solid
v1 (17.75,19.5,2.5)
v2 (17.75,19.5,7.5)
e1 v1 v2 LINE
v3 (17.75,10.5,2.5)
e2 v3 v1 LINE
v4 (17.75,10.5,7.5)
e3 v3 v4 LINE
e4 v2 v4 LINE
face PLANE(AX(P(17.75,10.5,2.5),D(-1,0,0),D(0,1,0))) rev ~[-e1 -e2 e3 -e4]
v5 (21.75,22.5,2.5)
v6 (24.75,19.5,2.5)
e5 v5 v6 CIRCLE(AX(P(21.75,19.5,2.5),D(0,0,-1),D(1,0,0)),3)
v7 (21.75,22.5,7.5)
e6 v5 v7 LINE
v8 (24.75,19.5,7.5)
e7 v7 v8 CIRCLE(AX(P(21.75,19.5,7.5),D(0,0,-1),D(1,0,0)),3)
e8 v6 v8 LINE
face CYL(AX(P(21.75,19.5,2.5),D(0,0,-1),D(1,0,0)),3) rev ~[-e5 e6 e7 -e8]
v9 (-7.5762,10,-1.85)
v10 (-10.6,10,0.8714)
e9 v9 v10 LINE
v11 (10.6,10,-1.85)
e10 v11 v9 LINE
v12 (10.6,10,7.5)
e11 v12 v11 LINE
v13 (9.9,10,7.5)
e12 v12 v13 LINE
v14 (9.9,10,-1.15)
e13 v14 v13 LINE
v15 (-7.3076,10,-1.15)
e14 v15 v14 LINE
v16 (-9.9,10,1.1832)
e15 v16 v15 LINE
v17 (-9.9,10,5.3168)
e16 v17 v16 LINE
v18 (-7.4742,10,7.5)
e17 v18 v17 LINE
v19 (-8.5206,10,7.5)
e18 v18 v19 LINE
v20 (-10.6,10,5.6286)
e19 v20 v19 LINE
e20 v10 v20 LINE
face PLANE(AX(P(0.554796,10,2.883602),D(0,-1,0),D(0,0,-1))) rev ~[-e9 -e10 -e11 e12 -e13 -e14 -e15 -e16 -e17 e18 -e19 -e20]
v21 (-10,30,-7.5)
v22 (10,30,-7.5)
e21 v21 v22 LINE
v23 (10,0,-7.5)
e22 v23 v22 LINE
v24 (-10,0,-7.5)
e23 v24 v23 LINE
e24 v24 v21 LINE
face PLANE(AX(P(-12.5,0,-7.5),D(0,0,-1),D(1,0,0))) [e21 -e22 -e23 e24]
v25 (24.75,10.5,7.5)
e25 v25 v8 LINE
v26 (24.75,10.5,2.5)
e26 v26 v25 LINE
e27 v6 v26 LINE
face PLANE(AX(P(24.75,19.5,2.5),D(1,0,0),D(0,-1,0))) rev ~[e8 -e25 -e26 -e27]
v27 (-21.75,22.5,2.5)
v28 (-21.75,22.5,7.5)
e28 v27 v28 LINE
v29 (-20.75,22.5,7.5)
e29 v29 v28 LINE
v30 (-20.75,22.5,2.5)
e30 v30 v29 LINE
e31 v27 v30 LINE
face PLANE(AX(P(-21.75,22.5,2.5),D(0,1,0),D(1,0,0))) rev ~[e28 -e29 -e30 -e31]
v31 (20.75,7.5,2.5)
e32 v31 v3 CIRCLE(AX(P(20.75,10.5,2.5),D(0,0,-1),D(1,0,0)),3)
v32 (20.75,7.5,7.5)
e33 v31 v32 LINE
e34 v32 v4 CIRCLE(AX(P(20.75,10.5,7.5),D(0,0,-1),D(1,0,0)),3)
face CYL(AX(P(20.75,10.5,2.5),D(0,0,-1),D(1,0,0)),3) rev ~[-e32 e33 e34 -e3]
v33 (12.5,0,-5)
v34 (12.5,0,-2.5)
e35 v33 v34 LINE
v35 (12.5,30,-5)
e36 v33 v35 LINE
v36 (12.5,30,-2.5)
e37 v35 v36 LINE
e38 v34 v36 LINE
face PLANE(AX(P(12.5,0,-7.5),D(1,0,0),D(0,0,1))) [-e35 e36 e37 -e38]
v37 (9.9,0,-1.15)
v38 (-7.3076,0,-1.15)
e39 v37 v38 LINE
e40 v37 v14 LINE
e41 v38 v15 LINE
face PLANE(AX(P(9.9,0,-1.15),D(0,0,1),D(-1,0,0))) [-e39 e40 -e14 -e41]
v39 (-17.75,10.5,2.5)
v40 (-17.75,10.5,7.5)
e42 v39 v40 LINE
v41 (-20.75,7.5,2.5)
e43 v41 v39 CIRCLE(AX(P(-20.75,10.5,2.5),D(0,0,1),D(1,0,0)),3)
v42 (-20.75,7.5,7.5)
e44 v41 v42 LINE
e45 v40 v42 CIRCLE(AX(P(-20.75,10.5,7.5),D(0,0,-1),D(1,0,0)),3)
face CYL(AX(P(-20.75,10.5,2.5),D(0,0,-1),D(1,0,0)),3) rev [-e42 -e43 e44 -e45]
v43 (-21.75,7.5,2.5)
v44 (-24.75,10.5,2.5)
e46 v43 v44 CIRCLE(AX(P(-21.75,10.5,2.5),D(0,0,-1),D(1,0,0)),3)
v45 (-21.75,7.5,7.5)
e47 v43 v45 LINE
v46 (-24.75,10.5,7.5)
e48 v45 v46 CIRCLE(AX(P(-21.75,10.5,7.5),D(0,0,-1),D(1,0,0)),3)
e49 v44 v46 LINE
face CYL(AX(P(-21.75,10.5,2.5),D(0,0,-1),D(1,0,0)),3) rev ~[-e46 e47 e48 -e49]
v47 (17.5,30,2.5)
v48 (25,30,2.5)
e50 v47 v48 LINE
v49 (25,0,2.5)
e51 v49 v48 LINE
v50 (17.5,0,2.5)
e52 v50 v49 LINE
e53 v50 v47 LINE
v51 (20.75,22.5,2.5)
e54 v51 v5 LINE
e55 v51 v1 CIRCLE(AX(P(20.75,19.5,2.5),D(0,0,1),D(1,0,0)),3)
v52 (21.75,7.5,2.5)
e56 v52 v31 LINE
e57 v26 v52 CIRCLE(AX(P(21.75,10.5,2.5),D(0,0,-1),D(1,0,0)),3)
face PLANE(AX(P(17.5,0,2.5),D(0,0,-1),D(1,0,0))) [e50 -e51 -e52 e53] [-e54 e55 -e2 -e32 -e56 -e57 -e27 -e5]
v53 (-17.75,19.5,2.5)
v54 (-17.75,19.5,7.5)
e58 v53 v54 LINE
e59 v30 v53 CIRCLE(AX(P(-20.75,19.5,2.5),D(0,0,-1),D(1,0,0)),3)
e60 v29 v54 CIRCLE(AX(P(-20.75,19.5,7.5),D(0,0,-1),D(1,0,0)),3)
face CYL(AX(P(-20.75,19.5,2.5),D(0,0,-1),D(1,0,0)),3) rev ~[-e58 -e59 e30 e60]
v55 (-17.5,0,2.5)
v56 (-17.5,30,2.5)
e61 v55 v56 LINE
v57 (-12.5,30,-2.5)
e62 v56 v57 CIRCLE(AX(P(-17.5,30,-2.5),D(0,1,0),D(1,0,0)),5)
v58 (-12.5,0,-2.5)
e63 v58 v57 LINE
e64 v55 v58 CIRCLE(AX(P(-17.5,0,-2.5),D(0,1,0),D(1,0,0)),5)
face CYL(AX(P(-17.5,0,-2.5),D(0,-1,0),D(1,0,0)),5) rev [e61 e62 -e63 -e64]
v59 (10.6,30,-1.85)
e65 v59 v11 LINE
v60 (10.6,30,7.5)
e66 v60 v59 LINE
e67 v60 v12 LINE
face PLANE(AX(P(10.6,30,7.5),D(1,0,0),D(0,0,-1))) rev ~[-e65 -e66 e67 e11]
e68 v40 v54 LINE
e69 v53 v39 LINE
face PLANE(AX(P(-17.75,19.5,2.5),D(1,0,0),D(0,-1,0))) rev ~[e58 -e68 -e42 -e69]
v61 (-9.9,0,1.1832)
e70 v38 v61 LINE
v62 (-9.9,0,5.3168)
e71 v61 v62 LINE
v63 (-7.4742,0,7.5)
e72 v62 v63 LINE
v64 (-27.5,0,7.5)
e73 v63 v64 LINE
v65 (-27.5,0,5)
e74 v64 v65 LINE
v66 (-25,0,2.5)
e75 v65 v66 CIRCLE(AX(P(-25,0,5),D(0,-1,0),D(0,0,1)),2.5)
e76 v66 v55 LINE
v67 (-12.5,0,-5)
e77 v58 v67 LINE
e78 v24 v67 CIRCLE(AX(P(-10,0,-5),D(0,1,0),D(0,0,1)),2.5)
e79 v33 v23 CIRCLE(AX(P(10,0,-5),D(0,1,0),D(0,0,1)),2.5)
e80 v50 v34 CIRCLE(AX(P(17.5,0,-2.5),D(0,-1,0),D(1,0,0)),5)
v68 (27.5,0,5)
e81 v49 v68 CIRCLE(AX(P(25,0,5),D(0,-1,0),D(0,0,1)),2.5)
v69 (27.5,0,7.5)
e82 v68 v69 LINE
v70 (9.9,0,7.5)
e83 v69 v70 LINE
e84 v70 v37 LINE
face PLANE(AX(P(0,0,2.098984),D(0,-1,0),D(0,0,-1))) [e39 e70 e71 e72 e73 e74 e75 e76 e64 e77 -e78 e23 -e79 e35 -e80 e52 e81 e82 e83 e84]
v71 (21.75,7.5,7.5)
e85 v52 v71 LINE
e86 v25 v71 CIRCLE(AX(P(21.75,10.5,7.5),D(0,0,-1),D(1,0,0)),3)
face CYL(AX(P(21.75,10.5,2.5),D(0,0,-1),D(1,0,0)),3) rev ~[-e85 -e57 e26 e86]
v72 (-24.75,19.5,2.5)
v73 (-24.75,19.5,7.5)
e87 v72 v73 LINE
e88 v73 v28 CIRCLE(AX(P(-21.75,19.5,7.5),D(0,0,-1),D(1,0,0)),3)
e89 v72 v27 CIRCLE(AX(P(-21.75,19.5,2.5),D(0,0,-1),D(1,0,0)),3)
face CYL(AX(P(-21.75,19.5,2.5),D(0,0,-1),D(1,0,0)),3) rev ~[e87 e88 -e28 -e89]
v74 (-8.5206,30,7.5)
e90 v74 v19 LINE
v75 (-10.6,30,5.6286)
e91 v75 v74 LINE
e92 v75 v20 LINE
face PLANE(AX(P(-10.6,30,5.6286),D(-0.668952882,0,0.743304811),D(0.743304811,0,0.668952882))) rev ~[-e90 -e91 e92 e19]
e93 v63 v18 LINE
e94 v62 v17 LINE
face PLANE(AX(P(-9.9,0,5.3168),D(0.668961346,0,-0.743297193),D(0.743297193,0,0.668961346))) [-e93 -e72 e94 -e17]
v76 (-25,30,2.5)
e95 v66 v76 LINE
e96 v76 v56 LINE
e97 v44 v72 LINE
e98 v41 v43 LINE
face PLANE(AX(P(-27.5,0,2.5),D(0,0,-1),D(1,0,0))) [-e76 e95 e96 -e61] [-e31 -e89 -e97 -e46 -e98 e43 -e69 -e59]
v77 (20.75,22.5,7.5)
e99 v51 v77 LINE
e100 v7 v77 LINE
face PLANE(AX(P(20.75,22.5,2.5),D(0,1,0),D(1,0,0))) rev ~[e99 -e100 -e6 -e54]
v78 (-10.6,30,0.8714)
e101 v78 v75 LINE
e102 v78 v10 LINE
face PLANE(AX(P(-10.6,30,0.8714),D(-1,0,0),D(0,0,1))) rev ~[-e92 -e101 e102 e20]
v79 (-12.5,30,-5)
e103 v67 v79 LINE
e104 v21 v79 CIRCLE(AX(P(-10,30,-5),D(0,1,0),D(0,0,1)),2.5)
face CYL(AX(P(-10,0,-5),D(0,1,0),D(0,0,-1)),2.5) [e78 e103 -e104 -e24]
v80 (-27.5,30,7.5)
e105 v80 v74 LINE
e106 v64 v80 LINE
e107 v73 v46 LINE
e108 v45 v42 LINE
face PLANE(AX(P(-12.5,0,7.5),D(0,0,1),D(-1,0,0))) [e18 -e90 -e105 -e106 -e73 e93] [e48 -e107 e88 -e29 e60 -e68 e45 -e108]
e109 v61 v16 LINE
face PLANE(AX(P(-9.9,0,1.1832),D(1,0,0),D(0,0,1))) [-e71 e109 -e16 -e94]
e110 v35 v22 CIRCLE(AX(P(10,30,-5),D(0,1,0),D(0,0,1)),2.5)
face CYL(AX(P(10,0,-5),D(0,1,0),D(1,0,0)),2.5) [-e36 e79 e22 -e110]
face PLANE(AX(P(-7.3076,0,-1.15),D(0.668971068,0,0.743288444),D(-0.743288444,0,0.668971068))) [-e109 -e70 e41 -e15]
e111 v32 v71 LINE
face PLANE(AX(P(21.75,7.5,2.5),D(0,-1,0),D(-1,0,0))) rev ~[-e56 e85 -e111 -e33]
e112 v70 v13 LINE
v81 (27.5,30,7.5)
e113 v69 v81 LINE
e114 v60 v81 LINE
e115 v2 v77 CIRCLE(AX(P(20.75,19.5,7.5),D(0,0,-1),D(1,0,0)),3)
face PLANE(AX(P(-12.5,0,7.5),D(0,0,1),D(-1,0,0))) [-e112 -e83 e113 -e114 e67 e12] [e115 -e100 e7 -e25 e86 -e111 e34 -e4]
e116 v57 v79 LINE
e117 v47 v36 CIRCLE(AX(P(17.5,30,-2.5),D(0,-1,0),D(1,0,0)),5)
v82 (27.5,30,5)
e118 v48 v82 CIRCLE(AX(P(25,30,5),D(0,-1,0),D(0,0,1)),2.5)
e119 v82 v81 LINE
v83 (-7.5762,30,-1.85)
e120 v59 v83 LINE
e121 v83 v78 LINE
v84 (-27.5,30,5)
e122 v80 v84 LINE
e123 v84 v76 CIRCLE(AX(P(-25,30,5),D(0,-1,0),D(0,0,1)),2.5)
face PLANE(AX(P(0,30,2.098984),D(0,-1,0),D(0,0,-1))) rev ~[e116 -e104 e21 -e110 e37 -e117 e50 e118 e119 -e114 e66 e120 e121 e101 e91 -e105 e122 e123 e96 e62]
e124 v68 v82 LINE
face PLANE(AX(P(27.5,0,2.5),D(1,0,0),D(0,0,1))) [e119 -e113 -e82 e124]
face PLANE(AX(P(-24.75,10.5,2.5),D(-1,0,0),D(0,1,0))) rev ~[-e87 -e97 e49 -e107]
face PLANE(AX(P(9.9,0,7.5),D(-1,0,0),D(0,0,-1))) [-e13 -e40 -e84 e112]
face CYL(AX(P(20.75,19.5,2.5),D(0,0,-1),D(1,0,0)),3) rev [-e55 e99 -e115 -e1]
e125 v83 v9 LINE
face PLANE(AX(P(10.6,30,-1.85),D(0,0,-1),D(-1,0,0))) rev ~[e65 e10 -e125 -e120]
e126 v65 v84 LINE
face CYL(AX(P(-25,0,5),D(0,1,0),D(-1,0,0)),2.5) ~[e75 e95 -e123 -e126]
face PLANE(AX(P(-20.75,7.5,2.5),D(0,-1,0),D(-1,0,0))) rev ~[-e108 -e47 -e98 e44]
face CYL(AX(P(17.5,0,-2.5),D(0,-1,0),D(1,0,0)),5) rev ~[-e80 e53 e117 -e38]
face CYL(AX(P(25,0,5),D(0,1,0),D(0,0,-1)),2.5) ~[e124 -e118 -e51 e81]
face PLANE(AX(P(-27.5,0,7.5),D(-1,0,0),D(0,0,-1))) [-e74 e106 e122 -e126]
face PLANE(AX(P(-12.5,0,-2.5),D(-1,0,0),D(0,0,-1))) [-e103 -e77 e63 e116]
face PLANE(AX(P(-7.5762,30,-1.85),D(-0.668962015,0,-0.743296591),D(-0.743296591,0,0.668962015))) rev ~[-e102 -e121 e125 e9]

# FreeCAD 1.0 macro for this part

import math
import FreeCAD as App
import Part
import Sketcher


def edges_at(feature, points):
    """Names of the edges that pass closest to the given points."""
    edges = feature.Shape.Edges
    near = lambda p: min(range(len(edges)), key=lambda i: edges[i].distToShape(Part.Vertex(*p))[0])
    return sorted({f"Edge{near(p) + 1}" for p in points})

doc = App.newDocument("Part")
params = doc.addObject("Spreadsheet::Sheet", "Params")
for row, (alias, value) in enumerate([
    ("sketch1_radius", "5 mm"),
    ("sketch1_width", "25 mm"),
    ("sketch1_width2", "10 mm"),
    ("sketch1_height", "5 mm"),
    ("pad1_length", "30 mm"),
    ("sketch2_height", "8.65 mm"),
    ("pocket1_length", "11 mm"),
    ("sketch3_height", "9.35 mm"),
    ("pocket2_length", "20 mm"),
    ("fillet_radius", "2.5 mm"),
    ("sketch4_radius", "3 mm"),
    ("sketch4_width", "1 mm"),
    ("sketch4_height", "9 mm"),
    ("pocket3_length", "10 mm"),
], start=1):
    params.set(f"A{row}", alias)
    params.set(f"B{row}", "=" + value)
    params.setAlias(f"B{row}", alias)

body = doc.addObject("PartDesign::Body", "Body")

sketch1 = doc.addObject("Sketcher::SketchObject", "Sketch")
body.addObject(sketch1)
sketch1.AttachmentSupport = (doc.XZ_Plane, [""])
sketch1.MapMode = "FlatFace"
sketch1.addGeometry([
    Part.LineSegment(App.Vector(-12, -8, 0), App.Vector(12, -8, 0)),
    Part.LineSegment(App.Vector(12, -8, 0), App.Vector(12, -2, 0)),
    Part.ArcOfCircle(Part.Circle(App.Vector(18, -2, 0), App.Vector(0, 0, 1), 5), math.radians(90), math.radians(180)),
    Part.LineSegment(App.Vector(18, 2, 0), App.Vector(28, 2, 0)),
    Part.LineSegment(App.Vector(28, 2, 0), App.Vector(28, 8, 0)),
    Part.LineSegment(App.Vector(28, 8, 0), App.Vector(-28, 8, 0)),
    Part.LineSegment(App.Vector(-28, 8, 0), App.Vector(-28, 2, 0)),
    Part.LineSegment(App.Vector(-28, 2, 0), App.Vector(-18, 2, 0)),
    Part.ArcOfCircle(Part.Circle(App.Vector(-18, -2, 0), App.Vector(0, 0, 1), 5), math.radians(0), math.radians(90)),
    Part.LineSegment(App.Vector(-12, -2, 0), App.Vector(-12, -8, 0)),
], False)
sketch1.addConstraint([
    Sketcher.Constraint("Coincident", 0, 2, 1, 1),
    Sketcher.Constraint("Tangent", 1, 2, 2, 2),
    Sketcher.Constraint("Tangent", 2, 1, 3, 1),
    Sketcher.Constraint("Coincident", 3, 2, 4, 1),
    Sketcher.Constraint("Coincident", 4, 2, 5, 1),
    Sketcher.Constraint("Coincident", 5, 2, 6, 1),
    Sketcher.Constraint("Coincident", 6, 2, 7, 1),
    Sketcher.Constraint("Tangent", 7, 2, 8, 2),
    Sketcher.Constraint("Tangent", 8, 1, 9, 1),
    Sketcher.Constraint("Coincident", 9, 2, 0, 1),
    Sketcher.Constraint("Horizontal", 0),
    Sketcher.Constraint("Vertical", 1),
    Sketcher.Constraint("Horizontal", 3),
    Sketcher.Constraint("Vertical", 4),
    Sketcher.Constraint("Horizontal", 5),
    Sketcher.Constraint("Vertical", 6),
    Sketcher.Constraint("Horizontal", 7),
    Sketcher.Constraint("Vertical", 9),
    Sketcher.Constraint("Equal", 2, 8),
    Sketcher.Constraint("Symmetric", 2, 3, 8, 3, -2),
    Sketcher.Constraint("Equal", 3, 7),
    Sketcher.Constraint("Equal", 1, 4),
    Sketcher.Constraint("Radius", 2, 5.0),
    Sketcher.Constraint("DistanceX", 0, 1, 0, 2, 25.0),
    Sketcher.Constraint("DistanceX", 3, 1, 3, 2, 10.0),
    Sketcher.Constraint("DistanceY", 1, 1, 1, 2, 5.0),
    Sketcher.Constraint("DistanceY", 2, 3, -1, 1, 2.5),
])
sketch1.setExpression("Constraints[22]", "Params.sketch1_radius")
sketch1.setExpression("Constraints[23]", "Params.sketch1_width")
sketch1.setExpression("Constraints[24]", "Params.sketch1_width2")
sketch1.setExpression("Constraints[25]", "Params.sketch1_height")
pad1 = doc.addObject("PartDesign::Pad", "Pad")
body.addObject(pad1)
pad1.Profile = sketch1
pad1.setExpression("Length", "Params.pad1_length")
pad1.Reversed = True

sketch2 = doc.addObject("Sketcher::SketchObject", "Sketch001")
body.addObject(sketch2)
sketch2.AttachmentSupport = (doc.XZ_Plane, [""])
sketch2.MapMode = "FlatFace"
sketch2.addGeometry([
    Part.LineSegment(App.Vector(-7.5, 7.5, 0), App.Vector(-9.9, 5.3, 0)),
    Part.LineSegment(App.Vector(-9.9, 5.3, 0), App.Vector(-9.9, 1.2, 0)),
    Part.LineSegment(App.Vector(-9.9, 1.2, 0), App.Vector(-7.3, -1.1, 0)),
    Part.LineSegment(App.Vector(-7.3, -1.1, 0), App.Vector(9.9, -1.1, 0)),
    Part.LineSegment(App.Vector(9.9, -1.1, 0), App.Vector(9.9, 7.5, 0)),
    Part.LineSegment(App.Vector(9.9, 7.5, 0), App.Vector(-7.5, 7.5, 0)),
], False)
sketch2.addConstraint([
    Sketcher.Constraint("Coincident", 0, 2, 1, 1),
    Sketcher.Constraint("Coincident", 1, 2, 2, 1),
    Sketcher.Constraint("Coincident", 2, 2, 3, 1),
    Sketcher.Constraint("Coincident", 3, 2, 4, 1),
    Sketcher.Constraint("Coincident", 4, 2, 5, 1),
    Sketcher.Constraint("Coincident", 5, 2, 0, 1),
    Sketcher.Constraint("Vertical", 1),
    Sketcher.Constraint("Horizontal", 3),
    Sketcher.Constraint("Vertical", 4),
    Sketcher.Constraint("Horizontal", 5),
    Sketcher.Constraint("DistanceY", 4, 1, 4, 2, 8.65),
    Sketcher.Constraint("DistanceX", 0, 2, -1, 1, 9.9),
    Sketcher.Constraint("DistanceX", -1, 1, 3, 2, 9.9),
    Sketcher.Constraint("DistanceY", -1, 1, 4, 2, 7.5),
    Sketcher.Constraint("DistanceX", 3, 1, 3, 2, 17.2076),
    Sketcher.Constraint("DistanceX", 5, 2, 5, 1, 17.3742),
    Sketcher.Constraint("DistanceY", 1, 2, 1, 1, 4.1336),
    Sketcher.Constraint("Distance", 0, 3.2636),
])
sketch2.setExpression("Constraints[10]", "Params.sketch2_height")
pocket1 = doc.addObject("PartDesign::Pocket", "Pocket")
body.addObject(pocket1)
pocket1.Profile = sketch2
pocket1.setExpression("Length", "Params.pocket1_length")

sketch3 = doc.addObject("Sketcher::SketchObject", "Sketch002")
body.addObject(sketch3)
sketch3.AttachmentSupport = (doc.XZ_Plane, [""])
sketch3.MapMode = "FlatFace"
sketch3.AttachmentOffset = App.Placement(App.Vector(0, 0, -30), App.Rotation())
sketch3.addGeometry([
    Part.LineSegment(App.Vector(-8.5, 7.5, 0), App.Vector(10.6, 7.5, 0)),
    Part.LineSegment(App.Vector(10.6, 7.5, 0), App.Vector(10.6, -1.9, 0)),
    Part.LineSegment(App.Vector(10.6, -1.9, 0), App.Vector(-7.6, -1.9, 0)),
    Part.LineSegment(App.Vector(-7.6, -1.9, 0), App.Vector(-10.6, 0.9, 0)),
    Part.LineSegment(App.Vector(-10.6, 0.9, 0), App.Vector(-10.6, 5.6, 0)),
    Part.LineSegment(App.Vector(-10.6, 5.6, 0), App.Vector(-8.5, 7.5, 0)),
], False)
sketch3.addConstraint([
    Sketcher.Constraint("Coincident", 0, 2, 1, 1),
    Sketcher.Constraint("Coincident", 1, 2, 2, 1),
    Sketcher.Constraint("Coincident", 2, 2, 3, 1),
    Sketcher.Constraint("Coincident", 3, 2, 4, 1),
    Sketcher.Constraint("Coincident", 4, 2, 5, 1),
    Sketcher.Constraint("Coincident", 5, 2, 0, 1),
    Sketcher.Constraint("Horizontal", 0),
    Sketcher.Constraint("Vertical", 1),
    Sketcher.Constraint("Horizontal", 2),
    Sketcher.Constraint("Vertical", 4),
    Sketcher.Constraint("DistanceY", 1, 2, 1, 1, 9.35),
    Sketcher.Constraint("DistanceX", -1, 1, 0, 2, 10.6),
    Sketcher.Constraint("DistanceY", -1, 1, 0, 2, 7.5),
    Sketcher.Constraint("DistanceX", 3, 2, -1, 1, 10.6),
    Sketcher.Constraint("Distance", 3, 4.068),
    Sketcher.Constraint("DistanceX", 0, 1, 0, 2, 19.1206),
    Sketcher.Constraint("DistanceX", 2, 2, 2, 1, 18.1762),
    Sketcher.Constraint("DistanceY", 4, 1, 4, 2, 4.7572),
])
sketch3.setExpression("Constraints[10]", "Params.sketch3_height")
pocket2 = doc.addObject("PartDesign::Pocket", "Pocket001")
body.addObject(pocket2)
pocket2.Profile = sketch3
pocket2.setExpression("Length", "Params.pocket2_length")
pocket2.Reversed = True
doc.recompute()

fillet = doc.addObject("PartDesign::Fillet", "Fillet")
body.addObject(fillet)
fillet.Base = (pocket2, edges_at(pocket2, [
    (-27.5, 15, 2.5),
    (27.5, 15, 2.5),
    (12.5, 15, -7.5),
    (-12.5, 15, -7.5),
]))
fillet.setExpression("Radius", "Params.fillet_radius")

sketch4 = doc.addObject("Sketcher::SketchObject", "Sketch003")
body.addObject(sketch4)
sketch4.AttachmentSupport = (doc.XY_Plane, [""])
sketch4.MapMode = "FlatFace"
sketch4.AttachmentOffset = App.Placement(App.Vector(0, 0, 2.5), App.Rotation())
sketch4.addGeometry([
    Part.ArcOfCircle(Part.Circle(App.Vector(-21.8, 10.5, 0), App.Vector(0, 0, 1), 3), math.radians(180), math.radians(270)),
    Part.LineSegment(App.Vector(-24.8, 10.5, 0), App.Vector(-24.8, 19.5, 0)),
    Part.ArcOfCircle(Part.Circle(App.Vector(-21.8, 19.5, 0), App.Vector(0, 0, 1), 3), math.radians(90), math.radians(180)),
    Part.LineSegment(App.Vector(-21.8, 22.5, 0), App.Vector(-20.8, 22.5, 0)),
    Part.ArcOfCircle(Part.Circle(App.Vector(-20.8, 19.5, 0), App.Vector(0, 0, 1), 3), math.radians(0), math.radians(90)),
    Part.LineSegment(App.Vector(-17.8, 19.5, 0), App.Vector(-17.8, 10.5, 0)),
    Part.ArcOfCircle(Part.Circle(App.Vector(-20.8, 10.5, 0), App.Vector(0, 0, 1), 3), math.radians(-90), math.radians(0)),
    Part.LineSegment(App.Vector(-20.8, 7.5, 0), App.Vector(-21.8, 7.5, 0)),
    Part.ArcOfCircle(Part.Circle(App.Vector(20.8, 10.5, 0), App.Vector(0, 0, 1), 3), math.radians(180), math.radians(270)),
    Part.LineSegment(App.Vector(17.8, 10.5, 0), App.Vector(17.8, 19.5, 0)),
    Part.ArcOfCircle(Part.Circle(App.Vector(20.8, 19.5, 0), App.Vector(0, 0, 1), 3), math.radians(90), math.radians(180)),
    Part.LineSegment(App.Vector(20.8, 22.5, 0), App.Vector(21.8, 22.5, 0)),
    Part.ArcOfCircle(Part.Circle(App.Vector(21.8, 19.5, 0), App.Vector(0, 0, 1), 3), math.radians(0), math.radians(90)),
    Part.LineSegment(App.Vector(24.8, 19.5, 0), App.Vector(24.8, 10.5, 0)),
    Part.ArcOfCircle(Part.Circle(App.Vector(21.8, 10.5, 0), App.Vector(0, 0, 1), 3), math.radians(-90), math.radians(0)),
    Part.LineSegment(App.Vector(21.8, 7.5, 0), App.Vector(20.8, 7.5, 0)),
], False)
sketch4.addConstraint([
    Sketcher.Constraint("Tangent", 0, 1, 1, 1),
    Sketcher.Constraint("Tangent", 1, 2, 2, 2),
    Sketcher.Constraint("Tangent", 2, 1, 3, 1),
    Sketcher.Constraint("Tangent", 3, 2, 4, 2),
    Sketcher.Constraint("Tangent", 4, 1, 5, 1),
    Sketcher.Constraint("Tangent", 5, 2, 6, 2),
    Sketcher.Constraint("Tangent", 6, 1, 7, 1),
    Sketcher.Constraint("Tangent", 7, 2, 0, 2),
    Sketcher.Constraint("Tangent", 8, 1, 9, 1),
    Sketcher.Constraint("Tangent", 9, 2, 10, 2),
    Sketcher.Constraint("Tangent", 10, 1, 11, 1),
    Sketcher.Constraint("Tangent", 11, 2, 12, 2),
    Sketcher.Constraint("Tangent", 12, 1, 13, 1),
    Sketcher.Constraint("Tangent", 13, 2, 14, 2),
    Sketcher.Constraint("Tangent", 14, 1, 15, 1),
    Sketcher.Constraint("Tangent", 15, 2, 8, 2),
    Sketcher.Constraint("Vertical", 1),
    Sketcher.Constraint("Horizontal", 3),
    Sketcher.Constraint("Vertical", 5),
    Sketcher.Constraint("Horizontal", 7),
    Sketcher.Constraint("Vertical", 9),
    Sketcher.Constraint("Horizontal", 11),
    Sketcher.Constraint("Vertical", 13),
    Sketcher.Constraint("Horizontal", 15),
    Sketcher.Constraint("Equal", 0, 2),
    Sketcher.Constraint("Equal", 2, 4),
    Sketcher.Constraint("Equal", 4, 6),
    Sketcher.Constraint("Equal", 6, 8),
    Sketcher.Constraint("Equal", 8, 10),
    Sketcher.Constraint("Equal", 10, 12),
    Sketcher.Constraint("Equal", 12, 14),
    Sketcher.Constraint("Symmetric", 6, 3, 8, 3, -2),
    Sketcher.Constraint("Symmetric", 2, 3, 12, 3, -2),
    Sketcher.Constraint("Radius", 0, 3.0),
    Sketcher.Constraint("DistanceX", 3, 1, 3, 2, 1.0),
    Sketcher.Constraint("DistanceY", 1, 1, 1, 2, 9.0),
    Sketcher.Constraint("DistanceY", -1, 1, 0, 3, 10.5),
    Sketcher.Constraint("DistanceX", 6, 3, 8, 3, 41.5),
])
sketch4.setExpression("Constraints[33]", "Params.sketch4_radius")
sketch4.setExpression("Constraints[34]", "Params.sketch4_width")
sketch4.setExpression("Constraints[35]", "Params.sketch4_height")
pocket3 = doc.addObject("PartDesign::Pocket", "Pocket002")
body.addObject(pocket3)
pocket3.Profile = sketch4
pocket3.setExpression("Length", "Params.pocket3_length")
pocket3.Reversed = True

doc.recompute()
